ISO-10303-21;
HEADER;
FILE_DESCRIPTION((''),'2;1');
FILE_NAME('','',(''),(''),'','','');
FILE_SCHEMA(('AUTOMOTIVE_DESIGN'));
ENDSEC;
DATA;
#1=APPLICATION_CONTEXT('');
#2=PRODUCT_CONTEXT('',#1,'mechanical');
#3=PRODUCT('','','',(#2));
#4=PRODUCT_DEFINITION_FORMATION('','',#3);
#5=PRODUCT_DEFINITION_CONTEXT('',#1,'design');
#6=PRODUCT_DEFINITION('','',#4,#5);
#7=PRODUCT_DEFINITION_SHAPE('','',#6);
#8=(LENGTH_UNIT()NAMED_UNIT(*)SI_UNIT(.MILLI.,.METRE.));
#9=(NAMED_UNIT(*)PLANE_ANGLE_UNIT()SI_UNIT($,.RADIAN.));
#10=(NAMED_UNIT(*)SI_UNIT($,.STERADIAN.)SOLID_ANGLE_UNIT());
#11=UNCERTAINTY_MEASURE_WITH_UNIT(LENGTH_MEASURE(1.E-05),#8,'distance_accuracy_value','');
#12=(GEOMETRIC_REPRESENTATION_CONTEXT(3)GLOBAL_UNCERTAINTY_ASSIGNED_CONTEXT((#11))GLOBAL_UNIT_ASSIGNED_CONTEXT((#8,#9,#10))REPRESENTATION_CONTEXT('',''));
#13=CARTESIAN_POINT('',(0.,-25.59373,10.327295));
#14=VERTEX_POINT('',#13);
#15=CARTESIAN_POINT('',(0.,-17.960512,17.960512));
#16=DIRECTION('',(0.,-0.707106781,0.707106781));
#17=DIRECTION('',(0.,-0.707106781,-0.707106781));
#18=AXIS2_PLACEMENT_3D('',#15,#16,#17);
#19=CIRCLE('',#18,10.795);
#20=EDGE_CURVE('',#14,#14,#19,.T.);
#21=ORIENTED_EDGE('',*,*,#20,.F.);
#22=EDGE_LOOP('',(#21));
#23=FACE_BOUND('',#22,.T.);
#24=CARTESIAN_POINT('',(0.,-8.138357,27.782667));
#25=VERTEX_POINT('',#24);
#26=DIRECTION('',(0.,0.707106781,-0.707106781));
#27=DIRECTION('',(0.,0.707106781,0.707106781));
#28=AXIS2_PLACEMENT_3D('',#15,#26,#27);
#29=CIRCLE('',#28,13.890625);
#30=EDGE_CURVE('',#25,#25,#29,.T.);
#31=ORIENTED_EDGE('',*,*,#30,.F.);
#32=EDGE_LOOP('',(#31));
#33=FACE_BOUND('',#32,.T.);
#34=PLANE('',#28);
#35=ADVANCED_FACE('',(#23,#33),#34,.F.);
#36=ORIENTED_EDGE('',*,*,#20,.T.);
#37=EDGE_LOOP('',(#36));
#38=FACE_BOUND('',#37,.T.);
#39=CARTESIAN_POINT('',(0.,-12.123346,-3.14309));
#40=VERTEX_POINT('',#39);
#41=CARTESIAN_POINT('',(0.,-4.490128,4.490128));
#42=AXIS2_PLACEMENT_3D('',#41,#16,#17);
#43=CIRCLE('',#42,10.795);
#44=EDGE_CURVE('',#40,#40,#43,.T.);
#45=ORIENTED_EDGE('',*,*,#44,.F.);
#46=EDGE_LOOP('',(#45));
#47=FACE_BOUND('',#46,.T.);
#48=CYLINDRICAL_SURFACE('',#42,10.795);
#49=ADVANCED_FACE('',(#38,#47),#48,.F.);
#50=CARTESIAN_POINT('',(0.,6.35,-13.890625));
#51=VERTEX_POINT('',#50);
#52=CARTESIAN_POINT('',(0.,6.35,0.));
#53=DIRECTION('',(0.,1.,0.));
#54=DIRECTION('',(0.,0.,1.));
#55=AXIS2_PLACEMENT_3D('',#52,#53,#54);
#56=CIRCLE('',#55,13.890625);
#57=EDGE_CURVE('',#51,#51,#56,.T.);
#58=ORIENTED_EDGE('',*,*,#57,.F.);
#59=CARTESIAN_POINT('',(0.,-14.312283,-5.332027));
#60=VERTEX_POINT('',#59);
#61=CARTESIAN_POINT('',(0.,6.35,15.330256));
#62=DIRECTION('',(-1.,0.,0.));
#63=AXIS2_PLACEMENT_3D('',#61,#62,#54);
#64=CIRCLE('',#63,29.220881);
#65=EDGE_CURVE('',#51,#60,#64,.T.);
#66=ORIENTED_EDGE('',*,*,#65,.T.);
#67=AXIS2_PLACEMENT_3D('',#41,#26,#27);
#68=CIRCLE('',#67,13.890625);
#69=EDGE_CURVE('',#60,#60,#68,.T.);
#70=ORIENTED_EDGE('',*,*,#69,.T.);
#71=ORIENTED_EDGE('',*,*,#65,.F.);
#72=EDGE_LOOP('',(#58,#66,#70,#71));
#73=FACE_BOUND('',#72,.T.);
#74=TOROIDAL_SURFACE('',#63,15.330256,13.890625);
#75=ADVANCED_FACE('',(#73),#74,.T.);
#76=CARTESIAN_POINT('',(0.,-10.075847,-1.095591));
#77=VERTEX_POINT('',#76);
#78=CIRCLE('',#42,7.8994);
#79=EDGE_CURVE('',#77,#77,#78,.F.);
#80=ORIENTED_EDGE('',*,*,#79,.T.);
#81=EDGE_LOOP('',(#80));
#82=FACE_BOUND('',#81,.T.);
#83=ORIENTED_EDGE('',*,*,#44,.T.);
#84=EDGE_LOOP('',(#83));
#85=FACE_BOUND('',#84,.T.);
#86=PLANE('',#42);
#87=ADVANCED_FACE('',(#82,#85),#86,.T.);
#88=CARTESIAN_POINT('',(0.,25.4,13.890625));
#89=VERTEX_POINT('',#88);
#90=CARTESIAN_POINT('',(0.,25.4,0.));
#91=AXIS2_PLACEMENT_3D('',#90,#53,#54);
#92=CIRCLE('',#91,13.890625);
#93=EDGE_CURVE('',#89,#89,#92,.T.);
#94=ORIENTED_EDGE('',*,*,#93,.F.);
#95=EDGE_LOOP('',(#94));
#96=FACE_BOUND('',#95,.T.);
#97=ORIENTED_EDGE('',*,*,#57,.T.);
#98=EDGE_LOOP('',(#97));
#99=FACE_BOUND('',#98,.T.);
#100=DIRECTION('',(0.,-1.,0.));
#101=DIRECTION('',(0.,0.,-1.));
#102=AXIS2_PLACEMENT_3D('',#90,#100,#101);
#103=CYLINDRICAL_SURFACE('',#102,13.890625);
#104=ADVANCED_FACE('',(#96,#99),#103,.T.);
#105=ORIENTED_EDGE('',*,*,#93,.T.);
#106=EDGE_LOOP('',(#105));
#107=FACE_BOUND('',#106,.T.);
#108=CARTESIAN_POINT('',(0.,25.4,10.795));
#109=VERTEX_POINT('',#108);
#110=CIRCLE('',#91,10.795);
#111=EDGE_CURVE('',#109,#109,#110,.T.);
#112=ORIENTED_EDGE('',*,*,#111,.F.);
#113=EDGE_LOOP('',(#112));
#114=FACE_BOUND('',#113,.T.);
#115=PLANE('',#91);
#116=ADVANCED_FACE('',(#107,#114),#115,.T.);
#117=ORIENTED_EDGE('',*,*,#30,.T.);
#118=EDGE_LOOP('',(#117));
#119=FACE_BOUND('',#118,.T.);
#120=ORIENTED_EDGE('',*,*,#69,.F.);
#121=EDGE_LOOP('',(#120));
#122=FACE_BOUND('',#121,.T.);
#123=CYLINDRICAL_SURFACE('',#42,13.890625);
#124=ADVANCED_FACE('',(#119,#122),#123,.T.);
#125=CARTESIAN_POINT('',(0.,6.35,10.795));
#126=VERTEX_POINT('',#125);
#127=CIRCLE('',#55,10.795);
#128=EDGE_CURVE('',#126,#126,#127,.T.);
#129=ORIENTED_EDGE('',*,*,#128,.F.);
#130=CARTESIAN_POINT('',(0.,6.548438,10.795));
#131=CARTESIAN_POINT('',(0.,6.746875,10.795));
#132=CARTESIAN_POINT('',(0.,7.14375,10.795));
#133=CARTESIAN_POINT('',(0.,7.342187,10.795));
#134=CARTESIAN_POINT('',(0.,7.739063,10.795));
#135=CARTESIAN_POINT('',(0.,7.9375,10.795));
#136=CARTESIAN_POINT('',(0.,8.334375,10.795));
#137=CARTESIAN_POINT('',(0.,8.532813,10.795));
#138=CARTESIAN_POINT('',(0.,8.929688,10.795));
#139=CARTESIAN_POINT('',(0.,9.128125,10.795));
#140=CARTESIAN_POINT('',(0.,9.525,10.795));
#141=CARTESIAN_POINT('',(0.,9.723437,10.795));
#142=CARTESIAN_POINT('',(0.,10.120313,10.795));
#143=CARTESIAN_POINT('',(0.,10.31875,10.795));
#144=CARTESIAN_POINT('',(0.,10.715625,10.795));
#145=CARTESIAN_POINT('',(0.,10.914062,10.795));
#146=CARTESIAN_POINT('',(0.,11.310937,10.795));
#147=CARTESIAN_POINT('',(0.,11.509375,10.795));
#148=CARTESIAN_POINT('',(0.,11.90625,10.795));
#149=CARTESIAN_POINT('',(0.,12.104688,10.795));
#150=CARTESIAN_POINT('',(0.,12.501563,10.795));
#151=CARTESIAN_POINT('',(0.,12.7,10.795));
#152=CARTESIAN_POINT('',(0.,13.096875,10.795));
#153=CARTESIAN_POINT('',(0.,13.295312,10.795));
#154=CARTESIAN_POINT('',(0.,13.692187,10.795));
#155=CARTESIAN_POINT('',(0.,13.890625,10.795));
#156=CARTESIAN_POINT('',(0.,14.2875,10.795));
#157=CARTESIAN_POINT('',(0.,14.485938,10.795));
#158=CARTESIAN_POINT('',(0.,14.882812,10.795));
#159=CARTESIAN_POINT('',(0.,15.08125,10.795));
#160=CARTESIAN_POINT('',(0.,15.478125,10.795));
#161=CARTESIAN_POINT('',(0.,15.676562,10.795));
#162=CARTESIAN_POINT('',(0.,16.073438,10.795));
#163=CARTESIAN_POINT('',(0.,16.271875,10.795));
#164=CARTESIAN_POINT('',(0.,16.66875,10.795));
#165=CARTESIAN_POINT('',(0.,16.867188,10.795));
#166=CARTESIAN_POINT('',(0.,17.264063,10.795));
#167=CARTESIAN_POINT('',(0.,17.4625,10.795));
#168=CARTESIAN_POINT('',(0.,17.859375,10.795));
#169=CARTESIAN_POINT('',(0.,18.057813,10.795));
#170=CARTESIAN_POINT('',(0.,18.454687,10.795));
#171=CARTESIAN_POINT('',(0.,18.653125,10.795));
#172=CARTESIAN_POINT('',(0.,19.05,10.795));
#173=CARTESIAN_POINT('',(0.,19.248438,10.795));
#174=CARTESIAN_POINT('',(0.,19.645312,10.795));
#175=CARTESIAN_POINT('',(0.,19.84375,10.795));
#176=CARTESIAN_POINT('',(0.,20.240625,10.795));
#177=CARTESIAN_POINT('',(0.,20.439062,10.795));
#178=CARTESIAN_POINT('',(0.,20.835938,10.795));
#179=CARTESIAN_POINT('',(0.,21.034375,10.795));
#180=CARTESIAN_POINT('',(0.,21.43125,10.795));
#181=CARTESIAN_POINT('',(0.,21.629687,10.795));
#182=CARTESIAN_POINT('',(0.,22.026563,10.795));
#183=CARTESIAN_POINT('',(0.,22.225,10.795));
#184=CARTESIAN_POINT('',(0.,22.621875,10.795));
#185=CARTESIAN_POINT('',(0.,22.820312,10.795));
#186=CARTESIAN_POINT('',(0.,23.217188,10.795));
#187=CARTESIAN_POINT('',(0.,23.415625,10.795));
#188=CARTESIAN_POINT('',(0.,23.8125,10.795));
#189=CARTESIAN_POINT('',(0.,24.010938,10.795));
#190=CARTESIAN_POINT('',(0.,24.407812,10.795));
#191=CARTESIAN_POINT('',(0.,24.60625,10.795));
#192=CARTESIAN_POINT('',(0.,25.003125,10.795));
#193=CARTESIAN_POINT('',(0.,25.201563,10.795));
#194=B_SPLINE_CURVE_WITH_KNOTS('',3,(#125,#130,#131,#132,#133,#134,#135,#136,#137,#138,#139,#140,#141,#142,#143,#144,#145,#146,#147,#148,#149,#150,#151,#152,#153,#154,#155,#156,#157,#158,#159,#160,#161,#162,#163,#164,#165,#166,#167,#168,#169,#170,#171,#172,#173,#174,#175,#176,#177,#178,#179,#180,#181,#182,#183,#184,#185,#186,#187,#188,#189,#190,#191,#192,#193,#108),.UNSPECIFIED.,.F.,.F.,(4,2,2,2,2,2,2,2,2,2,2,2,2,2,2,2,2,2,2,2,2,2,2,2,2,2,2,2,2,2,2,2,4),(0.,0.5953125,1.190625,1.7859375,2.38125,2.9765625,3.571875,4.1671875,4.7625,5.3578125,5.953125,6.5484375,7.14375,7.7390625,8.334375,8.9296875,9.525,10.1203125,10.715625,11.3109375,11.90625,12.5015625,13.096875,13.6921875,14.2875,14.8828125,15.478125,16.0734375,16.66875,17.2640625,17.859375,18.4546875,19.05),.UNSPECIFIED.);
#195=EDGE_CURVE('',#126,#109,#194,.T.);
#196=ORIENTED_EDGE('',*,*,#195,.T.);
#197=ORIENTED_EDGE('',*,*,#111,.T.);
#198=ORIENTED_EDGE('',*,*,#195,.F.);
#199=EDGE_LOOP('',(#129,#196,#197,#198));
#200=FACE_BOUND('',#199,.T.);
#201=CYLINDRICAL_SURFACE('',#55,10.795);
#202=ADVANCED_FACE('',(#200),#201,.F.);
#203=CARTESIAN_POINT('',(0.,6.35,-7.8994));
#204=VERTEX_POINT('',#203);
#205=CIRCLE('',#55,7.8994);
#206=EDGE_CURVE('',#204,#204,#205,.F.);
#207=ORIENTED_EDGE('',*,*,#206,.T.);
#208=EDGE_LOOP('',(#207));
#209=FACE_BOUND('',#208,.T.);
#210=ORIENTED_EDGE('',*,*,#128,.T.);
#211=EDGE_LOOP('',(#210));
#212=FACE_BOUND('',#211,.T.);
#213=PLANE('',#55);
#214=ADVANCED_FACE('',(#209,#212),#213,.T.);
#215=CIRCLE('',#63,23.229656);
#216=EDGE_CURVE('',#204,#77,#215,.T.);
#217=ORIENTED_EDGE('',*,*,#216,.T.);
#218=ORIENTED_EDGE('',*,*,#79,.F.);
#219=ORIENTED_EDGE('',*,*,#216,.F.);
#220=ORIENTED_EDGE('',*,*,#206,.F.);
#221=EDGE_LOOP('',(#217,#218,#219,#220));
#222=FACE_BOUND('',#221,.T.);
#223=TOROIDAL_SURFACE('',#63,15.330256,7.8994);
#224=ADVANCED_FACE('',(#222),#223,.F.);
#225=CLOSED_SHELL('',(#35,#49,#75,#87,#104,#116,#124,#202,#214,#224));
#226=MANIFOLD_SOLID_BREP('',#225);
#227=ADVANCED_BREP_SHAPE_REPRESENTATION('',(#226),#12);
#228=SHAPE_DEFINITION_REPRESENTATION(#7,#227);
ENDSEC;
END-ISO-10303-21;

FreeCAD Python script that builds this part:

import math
import FreeCAD as App
import Part
import Sketcher

V = App.Vector
Q = App.Units.Quantity

doc = App.newDocument("Part")
body = doc.addObject("PartDesign::Body", "Body")

sketch1 = body.newObject("Sketcher::SketchObject", "Sketch")
sketch1.AttachmentSupport = (doc.getObject("XZ_Plane"), [""])
sketch1.MapMode = "FlatFace"
sketch1.AttachmentOffset = App.Placement(V(0, 0, -1 * 25.4), App.Rotation())
sketch1.addGeometry([
    Part.Circle(V(0, 0, 0), V(0, 0, 1), 14),
    Part.Circle(V(0, 0, 0), V(0, 0, 1), 8),
], False)
sketch1.addConstraint([
    Sketcher.Constraint("Coincident", 0, 3, -1, 1),
    Sketcher.Constraint("Coincident", 1, 3, -1, 1),
    Sketcher.Constraint("Diameter", 0, Q("1.09375 in")),
    Sketcher.Constraint("Diameter", 1, Q("0.622 in")),
])

sketch2 = body.newObject("Sketcher::SketchObject", "Sketch001")
sketch2.AttachmentSupport = (doc.getObject("YZ_Plane"), [""])
sketch2.MapMode = "FlatFace"
sketch2.addGeometry([
    Part.LineSegment(V(-18, 18, 0), V(-4, 4, 0)),
    Part.ArcOfCircle(Part.Circle(V(6, 15, 0), V(0, 0, 1), 15), math.radians(-135), math.radians(-90)),
    Part.LineSegment(V(6, 0, 0), V(25, 0, 0)),
], False)
sketch2.addConstraint([
    Sketcher.Constraint("Tangent", 0, 2, 1, 1),
    Sketcher.Constraint("Tangent", 1, 2, 2, 1),
    Sketcher.Constraint("Horizontal", 2),
    Sketcher.Constraint("PointOnObject", 1, 2, -1),
    Sketcher.Constraint("DistanceX", -1, 1, 2, 2, Q("1 in")),
    Sketcher.Constraint("Angle", 0, Q("-45 deg")),
    Sketcher.Constraint("DistanceX", 2, 1, 2, 2, Q("0.75 in")),
    Sketcher.Constraint("Distance", 0, Q("0.75 in")),
    Sketcher.Constraint("Radius", 1, 15.330256),
])
doc.recompute()

additivepipe = body.newObject("PartDesign::AdditivePipe", "AdditivePipe")
additivepipe.Profile = sketch1
additivepipe.Spine = (sketch2, ["Edge1", "Edge2", "Edge3"])

sketch3 = body.newObject("Sketcher::SketchObject", "Sketch002")
sketch3.AttachmentSupport = (doc.getObject("XZ_Plane"), [""])
sketch3.MapMode = "FlatFace"
sketch3.AttachmentOffset = App.Placement(V(0, 0, -1 * 25.4), App.Rotation())
sketch3.addGeometry(Part.Circle(V(0, 0, 0), V(0, 0, 1), 11), False)
sketch3.addConstraint([
    Sketcher.Constraint("Coincident", 0, 3, -1, 1),
    Sketcher.Constraint("Diameter", 0, Q("0.85 in")),
])
pocket1 = body.newObject("PartDesign::Pocket", "Pocket")
pocket1.Profile = sketch3
pocket1.Length = Q("0.75 in")
pocket1.Reversed = True

sketch4 = body.newObject("Sketcher::SketchObject", "Sketch003")
sketch4.Placement = App.Placement(V(0, -17.960512, 17.960512), App.Rotation(V(1, 0, 0), V(0, 0.707106781, 0.707106781), V(0, -0.707106781, 0.707106781), "ZXY"))
sketch4.addGeometry(Part.Circle(V(0, 0, 0), V(0, 0, 1), 11), False)
sketch4.addConstraint([
    Sketcher.Constraint("Coincident", 0, 3, -1, 1),
    Sketcher.Constraint("Diameter", 0, Q("0.85 in")),
])
pocket2 = body.newObject("PartDesign::Pocket", "Pocket001")
pocket2.Profile = sketch4
pocket2.Length = Q("0.75 in")

doc.recompute()
